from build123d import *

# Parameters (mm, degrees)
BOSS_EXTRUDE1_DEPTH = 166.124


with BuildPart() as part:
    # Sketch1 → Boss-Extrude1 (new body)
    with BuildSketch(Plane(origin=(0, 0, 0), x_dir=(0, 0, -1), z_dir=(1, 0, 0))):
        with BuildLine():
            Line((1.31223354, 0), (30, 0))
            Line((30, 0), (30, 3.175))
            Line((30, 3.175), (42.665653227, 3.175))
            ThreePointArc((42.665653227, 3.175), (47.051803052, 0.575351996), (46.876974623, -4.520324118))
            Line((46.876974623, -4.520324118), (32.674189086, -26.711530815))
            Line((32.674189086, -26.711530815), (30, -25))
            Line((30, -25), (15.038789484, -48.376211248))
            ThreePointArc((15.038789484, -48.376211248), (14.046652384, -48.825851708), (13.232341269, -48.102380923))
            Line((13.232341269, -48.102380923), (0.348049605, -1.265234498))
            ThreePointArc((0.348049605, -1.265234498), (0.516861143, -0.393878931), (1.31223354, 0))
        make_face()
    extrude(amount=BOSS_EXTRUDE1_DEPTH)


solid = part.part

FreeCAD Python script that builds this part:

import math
import FreeCAD as App
import Part
import Sketcher
Q = App.Units.Quantity

doc = App.newDocument("Part")
params = doc.addObject("Spreadsheet::Sheet", "Params")
for row, (alias, value) in enumerate([
    ("sketch1_radius", "1 mm"),
    ("sketch1_radius2", "5 mm"),
    ("pad1_length", "166.124 mm"),
], start=1):
    params.set(f"A{row}", alias)
    params.set(f"B{row}", "=" + value)
    params.setAlias(f"B{row}", alias)

body = doc.addObject("PartDesign::Body", "Body")

# Sketch on YZ plane
sketch1 = body.newObject("Sketcher::SketchObject", "Sketch")
sketch1.AttachmentSupport = (doc.getObject("YZ_Plane"), [""])
sketch1.MapMode = "FlatFace"
sketch1.addGeometry([
    Part.LineSegment(App.Vector(0, -30, 0), App.Vector(0, -1.312234, 0)),  # 0
    Part.ArcOfCircle(Part.Circle(App.Vector(-1, -1.312234, 0), App.Vector(0, 0, 1), 1), math.radians(0), math.radians(105.380887)),  # 1
    Part.LineSegment(App.Vector(-1.265234, -0.34805, 0), App.Vector(-48.102381, -13.232341, 0)),  # 2
    Part.ArcOfCircle(Part.Circle(App.Vector(-47.837146, -14.196525, 0), App.Vector(0, 0, 1), 1), math.radians(105.380887), math.radians(237.38)),  # 3
    Part.LineSegment(App.Vector(-48.376211, -15.038789, 0), App.Vector(-25, -30, 0)),  # 4
    Part.LineSegment(App.Vector(-25, -30, 0), App.Vector(-26.711531, -32.674189, 0)),  # 5
    Part.LineSegment(App.Vector(-26.711531, -32.674189, 0), App.Vector(-4.520324, -46.876975, 0)),  # 6
    Part.ArcOfCircle(Part.Circle(App.Vector(-1.825, -42.665653, 0), App.Vector(0, 0, 1), 5), math.radians(-122.62), math.radians(0)),  # 7
    Part.LineSegment(App.Vector(3.175, -42.665653, 0), App.Vector(3.175, -30, 0)),  # 8
    Part.LineSegment(App.Vector(3.175, -30, 0), App.Vector(0, -30, 0)),  # 9
], False)
sketch1.addConstraint([
    Sketcher.Constraint("Tangent", 0, 2, 1, 1),
    Sketcher.Constraint("Tangent", 1, 2, 2, 1),
    Sketcher.Constraint("Tangent", 2, 2, 3, 1),
    Sketcher.Constraint("Tangent", 3, 2, 4, 1),
    Sketcher.Constraint("Coincident", 4, 2, 5, 1),
    Sketcher.Constraint("Coincident", 5, 2, 6, 1),
    Sketcher.Constraint("Tangent", 6, 2, 7, 1),
    Sketcher.Constraint("Tangent", 7, 2, 8, 1),
    Sketcher.Constraint("Coincident", 8, 2, 9, 1),
    Sketcher.Constraint("Coincident", 9, 2, 0, 1),
    Sketcher.Constraint("Vertical", 0),
    Sketcher.Constraint("Vertical", 8),
    Sketcher.Constraint("Horizontal", 9),
    Sketcher.Constraint("Equal", 1, 3),
    Sketcher.Constraint("PointOnObject", 0, 2, -2),
    Sketcher.Constraint("Perpendicular", 4, 5),
    Sketcher.Constraint("Perpendicular", 5, 6),
    Sketcher.Constraint("Horizontal", 4, 2, 8, 2),
    Sketcher.Constraint("Radius", 1, Q("1 mm")),
    Sketcher.Constraint("Radius", 7, Q("5 mm")),
    Sketcher.Constraint("DistanceX", 4, 2, -1, 1, Q("25 mm")),
    Sketcher.Constraint("DistanceY", 4, 2, -1, 1, Q("30 mm")),
    Sketcher.Constraint("Angle", 4, Q("-32.62 deg")),
    Sketcher.Constraint("DistanceX", 9, 2, 9, 1, Q("3.175 mm")),
    Sketcher.Constraint("Distance", 5, Q("3.175 mm")),
    Sketcher.Constraint("DistanceY", 5, 2, 3, 2, Q("17.6354 mm")),
    Sketcher.Constraint("DistanceY", 0, 1, 0, 2, Q("28.687766 mm")),
])
sketch1.setExpression("Constraints[18]", "Params.sketch1_radius")
sketch1.setExpression("Constraints[19]", "Params.sketch1_radius2")
pad1 = body.newObject("PartDesign::Pad", "Pad")
pad1.Profile = sketch1
pad1.setExpression("Length", "Params.pad1_length")

doc.recompute()
